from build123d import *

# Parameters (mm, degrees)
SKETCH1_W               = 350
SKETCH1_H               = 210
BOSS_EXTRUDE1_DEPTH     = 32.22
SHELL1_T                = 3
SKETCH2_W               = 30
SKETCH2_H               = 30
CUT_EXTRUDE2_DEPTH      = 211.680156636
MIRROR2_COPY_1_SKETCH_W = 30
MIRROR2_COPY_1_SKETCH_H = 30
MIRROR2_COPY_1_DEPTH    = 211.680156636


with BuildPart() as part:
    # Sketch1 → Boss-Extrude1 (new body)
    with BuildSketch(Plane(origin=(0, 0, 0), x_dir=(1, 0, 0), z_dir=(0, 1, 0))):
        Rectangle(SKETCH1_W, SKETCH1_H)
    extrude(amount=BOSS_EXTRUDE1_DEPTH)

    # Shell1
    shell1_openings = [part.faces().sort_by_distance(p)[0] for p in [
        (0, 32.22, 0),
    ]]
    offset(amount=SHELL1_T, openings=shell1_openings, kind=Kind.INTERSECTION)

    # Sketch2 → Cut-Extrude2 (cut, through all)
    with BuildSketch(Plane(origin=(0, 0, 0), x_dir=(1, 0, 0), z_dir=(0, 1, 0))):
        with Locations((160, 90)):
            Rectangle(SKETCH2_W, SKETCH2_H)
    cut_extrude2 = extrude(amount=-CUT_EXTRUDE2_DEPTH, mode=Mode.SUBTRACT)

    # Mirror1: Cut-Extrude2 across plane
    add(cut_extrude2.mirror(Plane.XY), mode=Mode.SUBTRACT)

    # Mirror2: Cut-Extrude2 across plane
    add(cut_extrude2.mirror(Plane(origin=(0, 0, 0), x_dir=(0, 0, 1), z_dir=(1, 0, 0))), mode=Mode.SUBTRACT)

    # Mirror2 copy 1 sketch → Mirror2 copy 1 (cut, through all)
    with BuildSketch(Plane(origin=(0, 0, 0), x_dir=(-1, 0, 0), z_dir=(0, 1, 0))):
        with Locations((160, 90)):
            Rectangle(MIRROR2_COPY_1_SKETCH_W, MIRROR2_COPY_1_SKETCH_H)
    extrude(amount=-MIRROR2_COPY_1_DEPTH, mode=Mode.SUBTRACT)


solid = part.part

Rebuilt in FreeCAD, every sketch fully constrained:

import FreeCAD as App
import Part
import Sketcher
from FreeCAD import Vector
Q = App.Units.Quantity


def faces_at(feature, points):
    """Names of the faces that lie closest to the given points."""
    faces = feature.Shape.Faces
    near = lambda p: min(range(len(faces)), key=lambda i: faces[i].distToShape(Part.Vertex(*p))[0])
    return sorted({f"Face{near(p) + 1}" for p in points})


def add_polygon(sketch, points):
    """Adds a closed chain of lines whose ends are joined by coincident constraints."""
    first, n = sketch.GeometryCount, len(points)
    for a, b in zip(points, points[1:] + points[:1]):
        sketch.addGeometry(Part.LineSegment(App.Vector(*a, 0), App.Vector(*b, 0)), False)
    for i in range(n):
        sketch.addConstraint(Sketcher.Constraint("Coincident", first + i, 2, first + (i + 1) % n, 1))

doc = App.newDocument("Part")
body = doc.addObject("PartDesign::Body", "Body")

sketch1 = body.newObject("Sketcher::SketchObject", "Sketch")
sketch1.AttachmentSupport = (doc.getObject("XZ_Plane"), [""])
sketch1.MapMode = "FlatFace"
add_polygon(sketch1, [(-175, -105), (-175, 105), (175, 105), (175, -105)])
sketch1.addConstraint([
    Sketcher.Constraint("Vertical", 0),
    Sketcher.Constraint("Horizontal", 1),
    Sketcher.Constraint("Vertical", 2),
    Sketcher.Constraint("Horizontal", 3),
    Sketcher.Constraint("Symmetric", 0, 2, 2, 2, -1, 1),
    Sketcher.Constraint("DistanceX", 1, 1, 1, 2, Q("350 mm")),
    Sketcher.Constraint("DistanceY", 0, 1, 0, 2, Q("210 mm")),
])
pad1 = body.newObject("PartDesign::Pad", "Pad")
pad1.Profile = sketch1
pad1.Length = 32.22
pad1.Reversed = True
doc.recompute()

thickness = body.newObject("PartDesign::Thickness", "Thickness")
thickness.Base = (pad1, faces_at(pad1, [(0, 32.22, 0)]))
thickness.Value = 3
thickness.Reversed = False
thickness.Join = "Intersection"

sketch2 = body.newObject("Sketcher::SketchObject", "Sketch001")
sketch2.AttachmentSupport = (doc.getObject("XZ_Plane"), [""])
sketch2.MapMode = "FlatFace"
add_polygon(sketch2, [(145, -105), (145, -75), (175, -75), (175, -105)])
sketch2.addConstraint([
    Sketcher.Constraint("Vertical", 0),
    Sketcher.Constraint("Horizontal", 1),
    Sketcher.Constraint("Vertical", 2),
    Sketcher.Constraint("Horizontal", 3),
    Sketcher.Constraint("Equal", 3, 0),
    Sketcher.Constraint("DistanceX", 1, 1, 1, 2, Q("30 mm")),
    Sketcher.Constraint("DistanceX", -1, 1, 0, 2, Q("145 mm")),
    Sketcher.Constraint("DistanceY", 0, 2, -1, 1, Q("75 mm")),
])
pocket1 = body.newObject("PartDesign::Pocket", "Pocket")
pocket1.Profile = sketch2
pocket1.Type = "ThroughAll"
pocket1.Reversed = True
doc.recompute()

mirrored = body.newObject("PartDesign::Mirrored", "Mirrored")
mirrored.Originals = [pocket1]
mirrored.MirrorPlane = (doc.getObject("XY_Plane"), [""])
body.Tip = mirrored
doc.recompute()

mirrored2 = body.newObject("PartDesign::Mirrored", "Mirrored001")
mirrored2.Originals = [pocket1]
mirrored2.MirrorPlane = (doc.getObject("YZ_Plane"), [""])
body.Tip = mirrored2

sketch3 = body.newObject("Sketcher::SketchObject", "Sketch002")
sketch3.AttachmentSupport = (doc.getObject("XZ_Plane"), [""])
sketch3.MapMode = "FlatFace"
add_polygon(sketch3, [(-145, 105), (-145, 75), (-175, 75), (-175, 105)])
sketch3.addConstraint([
    Sketcher.Constraint("Vertical", 0),
    Sketcher.Constraint("Horizontal", 1),
    Sketcher.Constraint("Vertical", 2),
    Sketcher.Constraint("Horizontal", 3),
    Sketcher.Constraint("Equal", 3, 0),
    Sketcher.Constraint("DistanceX", 1, 2, 1, 1, Q("30 mm")),
    Sketcher.Constraint("DistanceX", 0, 2, -1, 1, Q("145 mm")),
    Sketcher.Constraint("DistanceY", -1, 1, 0, 2, Q("75 mm")),
])
pocket2 = body.newObject("PartDesign::Pocket", "Pocket001")
pocket2.Profile = sketch3
pocket2.Type = "ThroughAll"
pocket2.Reversed = True

doc.recompute()
